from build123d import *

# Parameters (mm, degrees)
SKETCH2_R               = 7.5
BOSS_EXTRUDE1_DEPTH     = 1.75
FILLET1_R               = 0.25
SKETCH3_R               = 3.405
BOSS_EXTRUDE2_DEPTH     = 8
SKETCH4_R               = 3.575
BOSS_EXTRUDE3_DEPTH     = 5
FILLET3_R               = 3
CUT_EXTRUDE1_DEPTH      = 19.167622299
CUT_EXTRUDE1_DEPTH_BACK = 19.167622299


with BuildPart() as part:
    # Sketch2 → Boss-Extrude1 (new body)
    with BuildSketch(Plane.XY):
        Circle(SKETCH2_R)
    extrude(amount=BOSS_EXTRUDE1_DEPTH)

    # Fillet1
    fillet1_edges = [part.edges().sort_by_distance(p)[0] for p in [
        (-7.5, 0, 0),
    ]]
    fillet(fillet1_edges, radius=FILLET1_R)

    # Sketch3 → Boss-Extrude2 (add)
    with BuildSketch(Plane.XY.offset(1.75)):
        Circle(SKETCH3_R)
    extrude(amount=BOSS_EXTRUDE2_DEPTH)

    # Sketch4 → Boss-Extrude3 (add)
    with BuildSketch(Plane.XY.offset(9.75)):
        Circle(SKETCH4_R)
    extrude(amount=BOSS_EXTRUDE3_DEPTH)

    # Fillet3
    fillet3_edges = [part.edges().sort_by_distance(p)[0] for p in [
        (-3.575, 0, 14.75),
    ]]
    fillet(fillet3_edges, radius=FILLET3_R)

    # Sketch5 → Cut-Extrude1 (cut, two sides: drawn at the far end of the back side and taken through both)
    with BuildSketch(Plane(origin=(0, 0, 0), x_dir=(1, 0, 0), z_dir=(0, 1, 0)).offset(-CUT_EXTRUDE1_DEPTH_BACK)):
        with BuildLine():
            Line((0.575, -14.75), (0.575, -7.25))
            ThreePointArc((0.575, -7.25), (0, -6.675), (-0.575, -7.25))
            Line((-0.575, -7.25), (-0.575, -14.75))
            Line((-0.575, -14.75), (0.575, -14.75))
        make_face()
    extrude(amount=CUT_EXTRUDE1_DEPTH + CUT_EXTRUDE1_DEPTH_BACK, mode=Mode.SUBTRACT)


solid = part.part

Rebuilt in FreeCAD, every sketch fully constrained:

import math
import FreeCAD as App
import Part
import Sketcher

V = App.Vector


def edges_at(feature, points):
    """Names of the edges that pass closest to the given points."""
    edges = feature.Shape.Edges
    near = lambda p: min(range(len(edges)), key=lambda i: edges[i].distToShape(Part.Vertex(*p))[0])
    return sorted({f"Edge{near(p) + 1}" for p in points})

doc = App.newDocument("Part")
params = doc.addObject("Spreadsheet::Sheet", "Params")
for row, (alias, value) in enumerate([
    ("sketch1_diameter", "15 mm"),
    ("pad1_length", "1.75 mm"),
    ("fillet_radius", "0.25 mm"),
    ("sketch2_diameter", "6.81 mm"),
    ("pad2_length", "8 mm"),
    ("sketch3_diameter", "7.15 mm"),
    ("pad3_length", "5 mm"),
    ("fillet2_radius", "3 mm"),
    ("sketch4_height", "7.5 mm"),
], start=1):
    params.set(f"A{row}", alias)
    params.set(f"B{row}", "=" + value)
    params.setAlias(f"B{row}", alias)

body = doc.addObject("PartDesign::Body", "Body")

sketch1 = doc.addObject("Sketcher::SketchObject", "Sketch")
body.addObject(sketch1)
sketch1.AttachmentSupport = (doc.XY_Plane, [""])
sketch1.MapMode = "FlatFace"
sketch1.addGeometry(Part.Circle(V(0, 0, 0), V(0, 0, 1), 7.5), False)
sketch1.addConstraint(Sketcher.Constraint("Coincident", 0, 3, -1, 1))
sketch1.addConstraint(Sketcher.Constraint("Diameter", 0, 15.0))
sketch1.setExpression("Constraints[1]", "Params.sketch1_diameter")
pad1 = doc.addObject("PartDesign::Pad", "Pad")
body.addObject(pad1)
pad1.Profile = sketch1
pad1.setExpression("Length", "Params.pad1_length")
doc.recompute()

fillet = doc.addObject("PartDesign::Fillet", "Fillet")
body.addObject(fillet)
fillet.Base = (pad1, edges_at(pad1, [(-7.5, 0, 0)]))
fillet.setExpression("Radius", "Params.fillet_radius")

sketch2 = doc.addObject("Sketcher::SketchObject", "Sketch001")
body.addObject(sketch2)
sketch2.AttachmentSupport = (doc.XY_Plane, [""])
sketch2.MapMode = "FlatFace"
sketch2.AttachmentOffset = App.Placement(V(0, 0, 1.75), App.Rotation())
sketch2.addGeometry(Part.Circle(V(0, 0, 0), V(0, 0, 1), 3.405), False)
sketch2.addConstraint(Sketcher.Constraint("Coincident", 0, 3, -1, 1))
sketch2.addConstraint(Sketcher.Constraint("Diameter", 0, 6.81))
sketch2.setExpression("Constraints[1]", "Params.sketch2_diameter")
pad2 = doc.addObject("PartDesign::Pad", "Pad001")
body.addObject(pad2)
pad2.Profile = sketch2
pad2.setExpression("Length", "Params.pad2_length")

sketch3 = doc.addObject("Sketcher::SketchObject", "Sketch002")
body.addObject(sketch3)
sketch3.AttachmentSupport = (doc.XY_Plane, [""])
sketch3.MapMode = "FlatFace"
sketch3.AttachmentOffset = App.Placement(V(0, 0, 9.75), App.Rotation())
sketch3.addGeometry(Part.Circle(V(0, 0, 0), V(0, 0, 1), 3.575), False)
sketch3.addConstraint(Sketcher.Constraint("Coincident", 0, 3, -1, 1))
sketch3.addConstraint(Sketcher.Constraint("Diameter", 0, 7.15))
sketch3.setExpression("Constraints[1]", "Params.sketch3_diameter")
pad3 = doc.addObject("PartDesign::Pad", "Pad002")
body.addObject(pad3)
pad3.Profile = sketch3
pad3.setExpression("Length", "Params.pad3_length")
doc.recompute()

fillet2 = doc.addObject("PartDesign::Fillet", "Fillet001")
body.addObject(fillet2)
fillet2.Base = (pad3, edges_at(pad3, [(-3.575, 0, 14.75)]))
fillet2.setExpression("Radius", "Params.fillet2_radius")

sketch4 = doc.addObject("Sketcher::SketchObject", "Sketch003")
body.addObject(sketch4)
sketch4.AttachmentSupport = (doc.XZ_Plane, [""])
sketch4.MapMode = "FlatFace"
sketch4.addGeometry(Part.LineSegment(V(0.575, 14.75, 0), V(0.575, 7.25, 0)), False)
sketch4.addGeometry(Part.ArcOfCircle(Part.Circle(V(0, 7.25, 0), V(0, 0, 1), 0.575), math.radians(180), math.radians(360)), False)
sketch4.addGeometry(Part.LineSegment(V(-0.575, 7.25, 0), V(-0.575, 14.75, 0)), False)
sketch4.addGeometry(Part.LineSegment(V(-0.575, 14.75, 0), V(0.575, 14.75, 0)), False)
sketch4.addConstraint(Sketcher.Constraint("Tangent", 0, 2, 1, 2))
sketch4.addConstraint(Sketcher.Constraint("Tangent", 1, 1, 2, 1))
sketch4.addConstraint(Sketcher.Constraint("Coincident", 2, 2, 3, 1))
sketch4.addConstraint(Sketcher.Constraint("Coincident", 3, 2, 0, 1))
sketch4.addConstraint(Sketcher.Constraint("Vertical", 0))
sketch4.addConstraint(Sketcher.Constraint("Vertical", 2))
sketch4.addConstraint(Sketcher.Constraint("Horizontal", 3))
sketch4.addConstraint(Sketcher.Constraint("PointOnObject", 1, 3, -2))
sketch4.addConstraint(Sketcher.Constraint("DistanceY", 0, 2, 0, 1, 7.5))
sketch4.addConstraint(Sketcher.Constraint("Radius", 1, 0.575))
sketch4.addConstraint(Sketcher.Constraint("DistanceY", -1, 1, 1, 3, 7.25))
sketch4.setExpression("Constraints[8]", "Params.sketch4_height")
pocket1 = doc.addObject("PartDesign::Pocket", "Pocket")
body.addObject(pocket1)
pocket1.Profile = sketch4
pocket1.Type = "ThroughAll"
pocket1.Midplane = True

doc.recompute()
